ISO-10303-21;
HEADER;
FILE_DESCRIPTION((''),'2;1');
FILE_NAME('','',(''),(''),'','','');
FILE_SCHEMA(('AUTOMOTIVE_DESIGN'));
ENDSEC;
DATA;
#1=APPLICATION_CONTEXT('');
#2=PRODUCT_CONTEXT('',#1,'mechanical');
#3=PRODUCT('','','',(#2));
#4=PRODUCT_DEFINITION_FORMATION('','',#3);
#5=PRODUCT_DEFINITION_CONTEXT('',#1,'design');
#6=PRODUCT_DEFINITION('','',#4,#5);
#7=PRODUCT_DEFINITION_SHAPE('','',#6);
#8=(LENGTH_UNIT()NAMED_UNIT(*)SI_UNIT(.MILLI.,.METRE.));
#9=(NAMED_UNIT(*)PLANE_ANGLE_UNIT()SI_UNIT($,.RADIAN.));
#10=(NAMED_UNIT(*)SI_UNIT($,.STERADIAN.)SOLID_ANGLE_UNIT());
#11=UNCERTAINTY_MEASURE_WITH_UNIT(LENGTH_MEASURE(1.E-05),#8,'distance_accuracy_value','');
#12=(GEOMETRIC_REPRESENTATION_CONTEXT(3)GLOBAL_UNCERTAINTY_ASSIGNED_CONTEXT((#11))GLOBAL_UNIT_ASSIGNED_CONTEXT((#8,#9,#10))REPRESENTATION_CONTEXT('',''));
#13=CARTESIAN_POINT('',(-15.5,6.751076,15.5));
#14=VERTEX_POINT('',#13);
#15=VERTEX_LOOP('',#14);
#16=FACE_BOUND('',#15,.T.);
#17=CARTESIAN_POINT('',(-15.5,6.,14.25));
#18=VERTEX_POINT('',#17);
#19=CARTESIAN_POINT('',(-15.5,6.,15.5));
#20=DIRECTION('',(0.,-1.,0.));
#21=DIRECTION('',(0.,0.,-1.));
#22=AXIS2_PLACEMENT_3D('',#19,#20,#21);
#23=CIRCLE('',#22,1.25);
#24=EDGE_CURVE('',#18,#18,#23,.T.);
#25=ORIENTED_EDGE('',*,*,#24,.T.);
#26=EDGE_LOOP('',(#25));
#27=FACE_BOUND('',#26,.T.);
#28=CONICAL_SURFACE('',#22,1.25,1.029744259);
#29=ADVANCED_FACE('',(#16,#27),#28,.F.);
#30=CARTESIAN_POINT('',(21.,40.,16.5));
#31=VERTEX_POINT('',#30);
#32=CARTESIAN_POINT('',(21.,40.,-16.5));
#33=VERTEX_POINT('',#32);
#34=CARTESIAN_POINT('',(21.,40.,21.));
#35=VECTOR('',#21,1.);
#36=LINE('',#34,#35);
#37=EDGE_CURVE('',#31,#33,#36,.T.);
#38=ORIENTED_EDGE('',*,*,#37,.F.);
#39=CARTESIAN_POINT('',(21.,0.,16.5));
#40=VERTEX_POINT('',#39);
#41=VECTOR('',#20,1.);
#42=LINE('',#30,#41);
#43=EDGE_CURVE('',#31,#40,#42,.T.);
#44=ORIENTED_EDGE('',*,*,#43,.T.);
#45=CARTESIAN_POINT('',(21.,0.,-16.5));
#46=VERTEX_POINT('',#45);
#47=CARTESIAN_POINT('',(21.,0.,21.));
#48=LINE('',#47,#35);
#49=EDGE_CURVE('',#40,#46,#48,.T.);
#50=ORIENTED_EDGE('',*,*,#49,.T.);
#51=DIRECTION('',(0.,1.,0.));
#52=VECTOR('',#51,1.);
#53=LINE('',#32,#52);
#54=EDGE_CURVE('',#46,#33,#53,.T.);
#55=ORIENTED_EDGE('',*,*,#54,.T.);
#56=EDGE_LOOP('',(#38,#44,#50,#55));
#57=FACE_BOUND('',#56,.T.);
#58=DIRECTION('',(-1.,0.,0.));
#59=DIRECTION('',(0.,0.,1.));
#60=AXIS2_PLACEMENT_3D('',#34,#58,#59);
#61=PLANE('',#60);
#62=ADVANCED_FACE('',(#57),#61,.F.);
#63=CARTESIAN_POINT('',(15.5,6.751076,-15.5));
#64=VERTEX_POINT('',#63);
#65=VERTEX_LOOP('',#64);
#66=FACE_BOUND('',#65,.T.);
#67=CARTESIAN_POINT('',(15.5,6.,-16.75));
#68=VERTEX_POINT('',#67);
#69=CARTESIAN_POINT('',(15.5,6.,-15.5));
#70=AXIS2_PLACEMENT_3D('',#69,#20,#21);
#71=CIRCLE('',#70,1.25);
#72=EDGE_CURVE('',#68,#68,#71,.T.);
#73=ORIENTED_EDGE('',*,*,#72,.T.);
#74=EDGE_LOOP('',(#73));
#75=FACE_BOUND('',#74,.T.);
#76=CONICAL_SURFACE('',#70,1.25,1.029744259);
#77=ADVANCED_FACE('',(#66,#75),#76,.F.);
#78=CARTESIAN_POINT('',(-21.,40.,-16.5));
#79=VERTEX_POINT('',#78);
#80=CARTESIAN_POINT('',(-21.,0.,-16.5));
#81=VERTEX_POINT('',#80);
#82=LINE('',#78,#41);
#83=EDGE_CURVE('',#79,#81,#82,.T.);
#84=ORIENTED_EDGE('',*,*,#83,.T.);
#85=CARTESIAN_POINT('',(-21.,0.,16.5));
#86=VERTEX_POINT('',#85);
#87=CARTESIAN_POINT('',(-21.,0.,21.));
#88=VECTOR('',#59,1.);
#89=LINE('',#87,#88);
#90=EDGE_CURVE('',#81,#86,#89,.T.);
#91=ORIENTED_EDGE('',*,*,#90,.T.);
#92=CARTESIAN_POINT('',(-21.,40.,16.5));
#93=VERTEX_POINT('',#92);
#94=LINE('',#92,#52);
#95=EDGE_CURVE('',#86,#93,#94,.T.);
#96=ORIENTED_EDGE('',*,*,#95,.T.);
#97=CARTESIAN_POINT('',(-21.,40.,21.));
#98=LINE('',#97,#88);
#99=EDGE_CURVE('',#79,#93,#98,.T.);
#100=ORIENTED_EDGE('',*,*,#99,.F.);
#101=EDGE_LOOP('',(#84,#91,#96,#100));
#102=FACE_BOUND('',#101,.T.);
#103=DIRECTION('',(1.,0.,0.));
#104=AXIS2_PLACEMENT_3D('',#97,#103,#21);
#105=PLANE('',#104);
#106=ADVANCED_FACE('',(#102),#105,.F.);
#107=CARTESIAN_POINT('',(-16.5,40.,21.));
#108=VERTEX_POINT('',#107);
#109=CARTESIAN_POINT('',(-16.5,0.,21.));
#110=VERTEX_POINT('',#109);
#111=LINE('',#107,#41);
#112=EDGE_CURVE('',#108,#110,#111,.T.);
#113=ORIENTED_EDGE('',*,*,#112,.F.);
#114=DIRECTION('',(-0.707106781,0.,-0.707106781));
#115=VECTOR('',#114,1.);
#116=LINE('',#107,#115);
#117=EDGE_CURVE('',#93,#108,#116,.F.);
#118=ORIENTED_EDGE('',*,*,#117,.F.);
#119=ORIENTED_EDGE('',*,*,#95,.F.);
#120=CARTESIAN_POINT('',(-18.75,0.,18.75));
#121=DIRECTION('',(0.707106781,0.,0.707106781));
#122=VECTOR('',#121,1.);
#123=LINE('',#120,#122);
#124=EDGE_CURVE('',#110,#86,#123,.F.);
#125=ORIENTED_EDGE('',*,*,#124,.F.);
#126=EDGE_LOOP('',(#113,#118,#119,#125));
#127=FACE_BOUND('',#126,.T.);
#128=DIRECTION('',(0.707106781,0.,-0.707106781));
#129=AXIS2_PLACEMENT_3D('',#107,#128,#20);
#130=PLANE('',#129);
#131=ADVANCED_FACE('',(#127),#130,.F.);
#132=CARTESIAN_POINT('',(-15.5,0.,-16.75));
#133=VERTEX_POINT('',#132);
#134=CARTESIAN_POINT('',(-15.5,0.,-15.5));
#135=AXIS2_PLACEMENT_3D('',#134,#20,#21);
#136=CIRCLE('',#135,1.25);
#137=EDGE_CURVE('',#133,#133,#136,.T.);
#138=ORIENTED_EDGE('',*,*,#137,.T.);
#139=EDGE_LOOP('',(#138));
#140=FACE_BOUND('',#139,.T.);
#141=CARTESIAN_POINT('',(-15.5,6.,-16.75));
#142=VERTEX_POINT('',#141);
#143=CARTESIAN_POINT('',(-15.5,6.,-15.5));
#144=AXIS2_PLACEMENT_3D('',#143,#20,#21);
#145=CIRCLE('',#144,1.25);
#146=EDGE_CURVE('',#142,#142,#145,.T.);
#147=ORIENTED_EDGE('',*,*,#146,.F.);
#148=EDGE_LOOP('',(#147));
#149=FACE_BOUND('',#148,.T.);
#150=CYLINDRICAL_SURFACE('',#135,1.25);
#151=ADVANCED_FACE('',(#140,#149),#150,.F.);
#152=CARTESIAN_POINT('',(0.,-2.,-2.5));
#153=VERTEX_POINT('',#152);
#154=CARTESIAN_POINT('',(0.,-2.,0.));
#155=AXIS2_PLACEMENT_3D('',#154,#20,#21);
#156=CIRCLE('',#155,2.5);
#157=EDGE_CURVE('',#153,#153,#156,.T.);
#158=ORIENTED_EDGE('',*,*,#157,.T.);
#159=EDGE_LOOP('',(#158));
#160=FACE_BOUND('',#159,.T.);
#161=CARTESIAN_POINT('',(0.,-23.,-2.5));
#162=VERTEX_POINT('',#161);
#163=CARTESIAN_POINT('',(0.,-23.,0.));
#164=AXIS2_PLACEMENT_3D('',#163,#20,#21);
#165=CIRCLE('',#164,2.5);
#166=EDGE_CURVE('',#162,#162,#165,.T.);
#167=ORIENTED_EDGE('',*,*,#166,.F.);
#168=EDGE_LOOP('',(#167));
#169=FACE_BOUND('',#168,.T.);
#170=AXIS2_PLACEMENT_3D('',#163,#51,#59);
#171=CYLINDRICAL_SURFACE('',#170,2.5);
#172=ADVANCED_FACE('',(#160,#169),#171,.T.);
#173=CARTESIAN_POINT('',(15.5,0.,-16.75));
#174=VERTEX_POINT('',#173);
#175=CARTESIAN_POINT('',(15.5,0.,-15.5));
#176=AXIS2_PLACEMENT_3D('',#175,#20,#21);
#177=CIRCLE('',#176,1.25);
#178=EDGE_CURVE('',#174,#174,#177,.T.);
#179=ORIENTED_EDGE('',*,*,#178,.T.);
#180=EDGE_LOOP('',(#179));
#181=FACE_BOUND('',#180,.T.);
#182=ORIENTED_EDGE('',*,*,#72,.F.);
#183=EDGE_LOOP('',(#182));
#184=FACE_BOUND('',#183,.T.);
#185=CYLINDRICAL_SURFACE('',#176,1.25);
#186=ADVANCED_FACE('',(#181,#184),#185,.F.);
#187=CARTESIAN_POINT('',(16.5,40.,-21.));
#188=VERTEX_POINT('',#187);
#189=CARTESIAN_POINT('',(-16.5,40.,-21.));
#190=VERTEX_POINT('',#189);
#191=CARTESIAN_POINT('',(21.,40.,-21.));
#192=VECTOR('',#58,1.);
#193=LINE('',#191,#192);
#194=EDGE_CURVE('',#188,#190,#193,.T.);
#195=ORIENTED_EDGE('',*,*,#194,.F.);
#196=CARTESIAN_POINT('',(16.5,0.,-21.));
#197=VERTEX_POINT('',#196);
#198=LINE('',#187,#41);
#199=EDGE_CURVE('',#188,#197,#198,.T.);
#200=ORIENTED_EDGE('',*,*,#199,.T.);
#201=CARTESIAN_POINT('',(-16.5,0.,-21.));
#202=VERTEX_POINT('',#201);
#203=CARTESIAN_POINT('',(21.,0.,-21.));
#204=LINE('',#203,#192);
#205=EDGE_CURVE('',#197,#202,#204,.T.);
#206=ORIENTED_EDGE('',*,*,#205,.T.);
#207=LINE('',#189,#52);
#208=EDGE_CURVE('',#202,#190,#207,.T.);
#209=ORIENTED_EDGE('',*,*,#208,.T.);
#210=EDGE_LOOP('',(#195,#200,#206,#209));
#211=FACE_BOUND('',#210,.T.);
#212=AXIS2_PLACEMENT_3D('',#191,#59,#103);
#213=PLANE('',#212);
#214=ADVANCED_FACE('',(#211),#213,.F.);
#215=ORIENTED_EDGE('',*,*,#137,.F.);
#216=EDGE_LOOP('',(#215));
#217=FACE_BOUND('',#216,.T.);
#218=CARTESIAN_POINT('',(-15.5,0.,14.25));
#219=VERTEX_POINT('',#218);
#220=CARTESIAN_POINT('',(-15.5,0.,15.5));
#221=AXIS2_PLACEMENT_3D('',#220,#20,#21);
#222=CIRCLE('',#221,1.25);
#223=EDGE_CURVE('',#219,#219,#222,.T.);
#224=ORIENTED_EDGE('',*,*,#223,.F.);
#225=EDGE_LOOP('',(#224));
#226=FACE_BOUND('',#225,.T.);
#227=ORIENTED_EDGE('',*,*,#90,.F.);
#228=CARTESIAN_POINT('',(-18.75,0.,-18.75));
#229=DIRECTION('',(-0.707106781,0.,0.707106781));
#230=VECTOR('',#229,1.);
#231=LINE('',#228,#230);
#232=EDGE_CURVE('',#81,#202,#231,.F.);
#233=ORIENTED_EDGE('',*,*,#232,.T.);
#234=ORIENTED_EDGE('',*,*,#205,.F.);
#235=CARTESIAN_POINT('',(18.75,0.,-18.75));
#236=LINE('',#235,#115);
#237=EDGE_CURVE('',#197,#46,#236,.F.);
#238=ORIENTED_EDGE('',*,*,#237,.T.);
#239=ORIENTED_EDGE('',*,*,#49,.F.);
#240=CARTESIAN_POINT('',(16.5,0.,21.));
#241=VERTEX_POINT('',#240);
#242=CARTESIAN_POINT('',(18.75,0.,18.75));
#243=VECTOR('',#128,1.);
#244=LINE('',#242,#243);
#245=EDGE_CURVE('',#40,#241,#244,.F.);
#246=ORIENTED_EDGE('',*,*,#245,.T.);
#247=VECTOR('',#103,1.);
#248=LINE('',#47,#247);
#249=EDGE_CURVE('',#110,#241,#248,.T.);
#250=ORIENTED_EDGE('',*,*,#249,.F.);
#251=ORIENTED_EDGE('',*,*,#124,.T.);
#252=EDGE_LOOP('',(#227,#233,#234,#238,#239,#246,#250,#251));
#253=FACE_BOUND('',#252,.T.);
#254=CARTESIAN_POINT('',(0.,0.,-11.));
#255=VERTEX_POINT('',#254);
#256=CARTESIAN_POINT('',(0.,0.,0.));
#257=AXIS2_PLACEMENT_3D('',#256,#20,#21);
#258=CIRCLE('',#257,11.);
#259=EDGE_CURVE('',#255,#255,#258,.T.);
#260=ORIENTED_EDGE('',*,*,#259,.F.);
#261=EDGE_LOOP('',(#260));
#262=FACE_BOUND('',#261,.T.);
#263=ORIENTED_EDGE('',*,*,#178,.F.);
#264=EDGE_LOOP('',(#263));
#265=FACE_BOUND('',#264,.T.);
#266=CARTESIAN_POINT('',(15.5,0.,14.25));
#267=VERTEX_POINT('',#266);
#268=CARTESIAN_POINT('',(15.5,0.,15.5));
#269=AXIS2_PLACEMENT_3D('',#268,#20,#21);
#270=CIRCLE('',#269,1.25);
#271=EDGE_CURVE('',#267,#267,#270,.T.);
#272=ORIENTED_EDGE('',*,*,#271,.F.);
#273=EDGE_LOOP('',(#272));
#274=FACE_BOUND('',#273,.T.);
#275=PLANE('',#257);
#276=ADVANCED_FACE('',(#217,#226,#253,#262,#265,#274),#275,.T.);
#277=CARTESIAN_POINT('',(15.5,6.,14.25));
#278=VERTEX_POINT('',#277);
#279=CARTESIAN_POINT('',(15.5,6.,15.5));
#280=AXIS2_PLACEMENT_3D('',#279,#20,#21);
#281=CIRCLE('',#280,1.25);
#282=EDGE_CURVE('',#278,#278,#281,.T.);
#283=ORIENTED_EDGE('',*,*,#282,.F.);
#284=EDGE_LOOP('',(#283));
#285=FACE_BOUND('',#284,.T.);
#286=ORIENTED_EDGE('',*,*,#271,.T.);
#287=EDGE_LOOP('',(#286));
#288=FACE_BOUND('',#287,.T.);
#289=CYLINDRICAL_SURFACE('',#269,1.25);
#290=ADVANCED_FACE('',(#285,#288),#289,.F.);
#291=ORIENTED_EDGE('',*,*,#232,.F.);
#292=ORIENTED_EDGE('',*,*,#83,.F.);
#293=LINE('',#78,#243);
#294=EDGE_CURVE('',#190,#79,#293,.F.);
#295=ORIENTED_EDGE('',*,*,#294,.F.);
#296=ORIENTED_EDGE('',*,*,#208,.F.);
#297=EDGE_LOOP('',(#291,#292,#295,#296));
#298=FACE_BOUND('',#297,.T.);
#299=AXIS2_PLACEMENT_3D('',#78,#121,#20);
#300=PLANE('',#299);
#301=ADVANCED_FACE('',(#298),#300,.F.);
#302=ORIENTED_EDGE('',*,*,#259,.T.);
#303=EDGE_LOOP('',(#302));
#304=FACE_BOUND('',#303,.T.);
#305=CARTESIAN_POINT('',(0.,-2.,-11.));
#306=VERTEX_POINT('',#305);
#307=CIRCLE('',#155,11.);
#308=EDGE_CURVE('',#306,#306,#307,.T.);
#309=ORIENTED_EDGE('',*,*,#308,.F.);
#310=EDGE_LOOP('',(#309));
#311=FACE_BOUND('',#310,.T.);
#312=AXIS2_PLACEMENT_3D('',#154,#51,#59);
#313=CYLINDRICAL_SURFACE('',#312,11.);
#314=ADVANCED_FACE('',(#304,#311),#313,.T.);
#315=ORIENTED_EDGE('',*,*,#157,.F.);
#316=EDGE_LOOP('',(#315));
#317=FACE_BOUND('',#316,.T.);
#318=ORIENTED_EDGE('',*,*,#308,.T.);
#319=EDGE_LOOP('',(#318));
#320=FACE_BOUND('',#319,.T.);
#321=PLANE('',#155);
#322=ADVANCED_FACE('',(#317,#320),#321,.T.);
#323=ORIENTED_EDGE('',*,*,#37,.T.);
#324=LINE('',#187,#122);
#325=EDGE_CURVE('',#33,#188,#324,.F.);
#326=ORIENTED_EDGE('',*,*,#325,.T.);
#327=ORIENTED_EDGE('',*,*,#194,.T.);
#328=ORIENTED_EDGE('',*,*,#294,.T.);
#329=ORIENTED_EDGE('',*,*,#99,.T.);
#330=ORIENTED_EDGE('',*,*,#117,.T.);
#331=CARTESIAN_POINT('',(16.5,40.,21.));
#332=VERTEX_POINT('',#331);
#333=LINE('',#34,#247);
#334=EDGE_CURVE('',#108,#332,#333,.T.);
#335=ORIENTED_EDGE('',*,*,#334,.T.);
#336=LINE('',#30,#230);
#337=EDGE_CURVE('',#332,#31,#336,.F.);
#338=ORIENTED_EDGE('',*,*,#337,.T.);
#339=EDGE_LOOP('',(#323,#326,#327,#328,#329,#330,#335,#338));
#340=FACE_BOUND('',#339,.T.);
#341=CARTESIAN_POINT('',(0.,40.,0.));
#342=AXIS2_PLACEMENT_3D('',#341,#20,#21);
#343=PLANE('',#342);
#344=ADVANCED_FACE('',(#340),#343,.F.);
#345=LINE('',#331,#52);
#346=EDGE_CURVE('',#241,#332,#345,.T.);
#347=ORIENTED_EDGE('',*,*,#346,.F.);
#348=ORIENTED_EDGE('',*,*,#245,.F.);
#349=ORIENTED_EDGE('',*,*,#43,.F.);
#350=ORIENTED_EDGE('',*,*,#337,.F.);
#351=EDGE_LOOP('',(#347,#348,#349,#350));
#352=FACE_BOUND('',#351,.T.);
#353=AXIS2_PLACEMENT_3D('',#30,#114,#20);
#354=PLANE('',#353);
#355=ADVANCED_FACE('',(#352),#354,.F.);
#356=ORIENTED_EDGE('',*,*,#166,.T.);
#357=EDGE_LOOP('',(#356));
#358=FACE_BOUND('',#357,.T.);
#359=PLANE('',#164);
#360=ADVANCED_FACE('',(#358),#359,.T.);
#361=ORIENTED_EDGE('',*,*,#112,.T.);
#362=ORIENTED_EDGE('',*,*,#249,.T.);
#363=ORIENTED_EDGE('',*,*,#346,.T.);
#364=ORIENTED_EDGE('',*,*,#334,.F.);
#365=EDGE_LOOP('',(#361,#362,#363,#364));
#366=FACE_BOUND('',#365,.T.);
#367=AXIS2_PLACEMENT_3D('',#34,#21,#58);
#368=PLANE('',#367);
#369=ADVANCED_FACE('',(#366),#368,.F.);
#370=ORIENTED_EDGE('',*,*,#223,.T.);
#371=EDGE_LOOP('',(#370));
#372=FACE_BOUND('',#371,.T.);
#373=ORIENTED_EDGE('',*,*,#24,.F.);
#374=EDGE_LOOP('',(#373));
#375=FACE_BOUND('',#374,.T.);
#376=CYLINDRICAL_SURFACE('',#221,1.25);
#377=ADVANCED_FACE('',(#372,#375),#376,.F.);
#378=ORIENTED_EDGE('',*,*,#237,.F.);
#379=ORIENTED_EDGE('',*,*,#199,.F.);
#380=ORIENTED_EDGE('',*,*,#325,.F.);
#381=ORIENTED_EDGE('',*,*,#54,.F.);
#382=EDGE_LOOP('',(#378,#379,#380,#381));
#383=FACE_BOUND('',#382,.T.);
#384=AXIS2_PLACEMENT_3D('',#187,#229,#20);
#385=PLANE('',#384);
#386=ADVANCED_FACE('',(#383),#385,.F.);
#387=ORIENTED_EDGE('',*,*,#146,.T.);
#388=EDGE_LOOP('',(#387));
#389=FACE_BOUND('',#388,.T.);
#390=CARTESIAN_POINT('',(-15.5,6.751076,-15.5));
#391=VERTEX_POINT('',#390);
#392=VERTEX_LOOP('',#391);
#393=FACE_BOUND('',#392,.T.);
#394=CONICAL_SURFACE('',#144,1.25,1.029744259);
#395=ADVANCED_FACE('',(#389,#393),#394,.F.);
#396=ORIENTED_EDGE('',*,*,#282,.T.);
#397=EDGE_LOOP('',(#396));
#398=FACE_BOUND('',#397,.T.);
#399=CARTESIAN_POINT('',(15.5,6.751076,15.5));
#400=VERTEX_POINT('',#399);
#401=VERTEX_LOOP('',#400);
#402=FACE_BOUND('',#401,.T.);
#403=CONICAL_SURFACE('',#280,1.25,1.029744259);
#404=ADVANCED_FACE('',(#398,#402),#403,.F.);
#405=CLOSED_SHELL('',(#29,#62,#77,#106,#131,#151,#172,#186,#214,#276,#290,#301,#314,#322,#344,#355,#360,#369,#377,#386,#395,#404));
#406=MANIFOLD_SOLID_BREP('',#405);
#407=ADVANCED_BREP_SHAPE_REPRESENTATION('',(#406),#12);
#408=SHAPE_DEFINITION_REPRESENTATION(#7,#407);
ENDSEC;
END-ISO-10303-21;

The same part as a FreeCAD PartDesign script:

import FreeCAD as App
import Part
import Sketcher
from FreeCAD import Vector
Q = App.Units.Quantity


def edges_at(feature, points):
    """Names of the edges that pass closest to the given points."""
    edges = feature.Shape.Edges
    near = lambda p: min(range(len(edges)), key=lambda i: edges[i].distToShape(Part.Vertex(*p))[0])
    return sorted({f"Edge{near(p) + 1}" for p in points})

doc = App.newDocument("Part")
body = doc.addObject("PartDesign::Body", "Body")

sketch1 = body.newObject("Sketcher::SketchObject", "Sketch")
sketch1.AttachmentSupport = (doc.getObject("XZ_Plane"), [""])
sketch1.MapMode = "FlatFace"
sketch1.addGeometry([
    Part.LineSegment(Vector(-21, -21, 0), Vector(-21, 21, 0)),
    Part.LineSegment(Vector(-21, 21, 0), Vector(21, 21, 0)),
    Part.LineSegment(Vector(21, 21, 0), Vector(21, -21, 0)),
    Part.LineSegment(Vector(21, -21, 0), Vector(-21, -21, 0)),
], False)
sketch1.addConstraint([
    Sketcher.Constraint("Coincident", 0, 2, 1, 1),
    Sketcher.Constraint("Coincident", 1, 2, 2, 1),
    Sketcher.Constraint("Coincident", 2, 2, 3, 1),
    Sketcher.Constraint("Coincident", 3, 2, 0, 1),
    Sketcher.Constraint("Vertical", 0),
    Sketcher.Constraint("Horizontal", 1),
    Sketcher.Constraint("Vertical", 2),
    Sketcher.Constraint("Horizontal", 3),
    Sketcher.Constraint("Symmetric", 0, 2, 2, 2, -1, 1),
    Sketcher.Constraint("Equal", 3, 0),
    Sketcher.Constraint("DistanceX", 1, 1, 1, 2, Q("42 mm")),
])
pad1 = body.newObject("PartDesign::Pad", "Pad")
pad1.Profile = sketch1
pad1.Length = 40
pad1.Reversed = True

sketch2 = body.newObject("Sketcher::SketchObject", "Sketch001")
sketch2.AttachmentSupport = (doc.getObject("XZ_Plane"), [""])
sketch2.MapMode = "FlatFace"
sketch2.addGeometry(Part.Circle(Vector(0, 0, 0), Vector(0, 0, 1), 11), False)
sketch2.addConstraint([
    Sketcher.Constraint("Coincident", 0, 3, -1, 1),
    Sketcher.Constraint("Diameter", 0, Q("22 mm")),
])
pad2 = body.newObject("PartDesign::Pad", "Pad001")
pad2.Profile = sketch2
pad2.Length = 2

sketch3 = body.newObject("Sketcher::SketchObject", "Sketch002")
sketch3.AttachmentSupport = (doc.getObject("XZ_Plane"), [""])
sketch3.MapMode = "FlatFace"
sketch3.AttachmentOffset = App.Placement(Vector(0, 0, 2), App.Rotation())
sketch3.addGeometry(Part.Circle(Vector(0, 0, 0), Vector(0, 0, 1), 2.5), False)
sketch3.addConstraint([
    Sketcher.Constraint("Coincident", 0, 3, -1, 1),
    Sketcher.Constraint("Diameter", 0, Q("5 mm")),
])
pad3 = body.newObject("PartDesign::Pad", "Pad002")
pad3.Profile = sketch3
pad3.Length = 21
doc.recompute()

chamfer = body.newObject("PartDesign::Chamfer", "Chamfer")
chamfer.Base = (pad3, edges_at(pad3, [
    (-21, 20, 21),
    (-21, 20, -21),
    (21, 20, -21),
    (21, 20, 21),
]))
chamfer.Size = 4.5

sketch4 = body.newObject("Sketcher::SketchObject", "Sketch003")
sketch4.AttachmentSupport = (doc.getObject("XZ_Plane"), [""])
sketch4.MapMode = "FlatFace"
sketch4.addGeometry([
    Part.Circle(Vector(-15.5, -15.5, 0), Vector(0, 0, 1), 1.2),
    Part.Circle(Vector(15.5, -15.5, 0), Vector(0, 0, 1), 1.2),
    Part.Circle(Vector(15.5, 15.5, 0), Vector(0, 0, 1), 1.2),
    Part.Circle(Vector(-15.5, 15.5, 0), Vector(0, 0, 1), 1.2),
], False)
sketch4.addConstraint([
    Sketcher.Constraint("Equal", 0, 1),
    Sketcher.Constraint("Equal", 1, 2),
    Sketcher.Constraint("Equal", 2, 3),
    Sketcher.Constraint("Symmetric", 0, 3, 2, 3, -1, 1),
    Sketcher.Constraint("Symmetric", 1, 3, 3, 3, -1, 1),
    Sketcher.Constraint("Symmetric", 0, 3, 1, 3, -2),
    Sketcher.Constraint("Diameter", 0, Q("2.5 mm")),
    Sketcher.Constraint("DistanceX", 0, 3, 1, 3, Q("31 mm")),
    Sketcher.Constraint("DistanceY", 1, 3, 2, 3, Q("31 mm")),
])
doc.recompute()
hole = body.newObject("PartDesign::Hole", "Hole")
hole.Profile = sketch4
hole.ThreadType = "None"
hole.Diameter = 2.5
hole.DepthType = "Dimension"
hole.Depth = 6
hole.DrillPoint = "Angled"
hole.DrillPointAngle = 118

doc.recompute()
